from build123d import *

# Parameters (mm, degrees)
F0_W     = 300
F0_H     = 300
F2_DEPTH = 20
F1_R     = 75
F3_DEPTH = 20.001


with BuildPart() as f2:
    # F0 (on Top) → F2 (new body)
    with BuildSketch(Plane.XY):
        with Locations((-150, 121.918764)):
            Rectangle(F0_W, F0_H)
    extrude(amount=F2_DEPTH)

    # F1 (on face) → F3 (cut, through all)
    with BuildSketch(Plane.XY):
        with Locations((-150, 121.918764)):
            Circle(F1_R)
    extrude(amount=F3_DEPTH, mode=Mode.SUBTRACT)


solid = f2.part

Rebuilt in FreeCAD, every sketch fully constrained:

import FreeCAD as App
import Part
import Sketcher
from FreeCAD import Vector
Q = App.Units.Quantity

doc = App.newDocument("Part")
body = doc.addObject("PartDesign::Body", "Body")

# Sketch on XY plane
sketch1 = body.newObject("Sketcher::SketchObject", "Sketch")
sketch1.AttachmentSupport = (doc.getObject("XY_Plane"), [""])
sketch1.MapMode = "FlatFace"
sketch1.addGeometry([
    Part.LineSegment(Vector(-300, 271.918764, 0), Vector(-300, -28.081236, 0)),
    Part.LineSegment(Vector(-300, -28.081236, 0), Vector(0, -28.081236, 0)),
    Part.LineSegment(Vector(0, -28.081236, 0), Vector(0, 271.918764, 0)),
    Part.LineSegment(Vector(0, 271.918764, 0), Vector(-300, 271.918764, 0)),
], False)
sketch1.addConstraint([
    Sketcher.Constraint("Coincident", 0, 2, 1, 1),
    Sketcher.Constraint("Coincident", 1, 2, 2, 1),
    Sketcher.Constraint("Coincident", 2, 2, 3, 1),
    Sketcher.Constraint("Coincident", 3, 2, 0, 1),
    Sketcher.Constraint("Vertical", 0),
    Sketcher.Constraint("Horizontal", 1),
    Sketcher.Constraint("Vertical", 2),
    Sketcher.Constraint("Horizontal", 3),
    Sketcher.Constraint("PointOnObject", 1, 2, -2),
    Sketcher.Constraint("Equal", 3, 0),
    Sketcher.Constraint("DistanceX", 1, 1, 1, 2, Q("300 mm")),
    Sketcher.Constraint("DistanceY", 0, 2, -1, 1, Q("28.081236 mm")),
])
pad1 = body.newObject("PartDesign::Pad", "Pad")
pad1.Profile = sketch1
pad1.Length = 20

# Sketch on XY plane
sketch2 = body.newObject("Sketcher::SketchObject", "Sketch001")
sketch2.AttachmentSupport = (doc.getObject("XY_Plane"), [""])
sketch2.MapMode = "FlatFace"
sketch2.addGeometry(Part.Circle(Vector(-150, 121.918764, 0), Vector(0, 0, 1), 75), False)
sketch2.addConstraint([
    Sketcher.Constraint("Diameter", 0, Q("150 mm")),
    Sketcher.Constraint("DistanceX", 0, 3, -1, 1, Q("150 mm")),
    Sketcher.Constraint("DistanceY", -1, 1, 0, 3, Q("121.918764 mm")),
])
pocket1 = body.newObject("PartDesign::Pocket", "Pocket")
pocket1.Profile = sketch2
pocket1.Type = "ThroughAll"
pocket1.Reversed = True

doc.recompute()
